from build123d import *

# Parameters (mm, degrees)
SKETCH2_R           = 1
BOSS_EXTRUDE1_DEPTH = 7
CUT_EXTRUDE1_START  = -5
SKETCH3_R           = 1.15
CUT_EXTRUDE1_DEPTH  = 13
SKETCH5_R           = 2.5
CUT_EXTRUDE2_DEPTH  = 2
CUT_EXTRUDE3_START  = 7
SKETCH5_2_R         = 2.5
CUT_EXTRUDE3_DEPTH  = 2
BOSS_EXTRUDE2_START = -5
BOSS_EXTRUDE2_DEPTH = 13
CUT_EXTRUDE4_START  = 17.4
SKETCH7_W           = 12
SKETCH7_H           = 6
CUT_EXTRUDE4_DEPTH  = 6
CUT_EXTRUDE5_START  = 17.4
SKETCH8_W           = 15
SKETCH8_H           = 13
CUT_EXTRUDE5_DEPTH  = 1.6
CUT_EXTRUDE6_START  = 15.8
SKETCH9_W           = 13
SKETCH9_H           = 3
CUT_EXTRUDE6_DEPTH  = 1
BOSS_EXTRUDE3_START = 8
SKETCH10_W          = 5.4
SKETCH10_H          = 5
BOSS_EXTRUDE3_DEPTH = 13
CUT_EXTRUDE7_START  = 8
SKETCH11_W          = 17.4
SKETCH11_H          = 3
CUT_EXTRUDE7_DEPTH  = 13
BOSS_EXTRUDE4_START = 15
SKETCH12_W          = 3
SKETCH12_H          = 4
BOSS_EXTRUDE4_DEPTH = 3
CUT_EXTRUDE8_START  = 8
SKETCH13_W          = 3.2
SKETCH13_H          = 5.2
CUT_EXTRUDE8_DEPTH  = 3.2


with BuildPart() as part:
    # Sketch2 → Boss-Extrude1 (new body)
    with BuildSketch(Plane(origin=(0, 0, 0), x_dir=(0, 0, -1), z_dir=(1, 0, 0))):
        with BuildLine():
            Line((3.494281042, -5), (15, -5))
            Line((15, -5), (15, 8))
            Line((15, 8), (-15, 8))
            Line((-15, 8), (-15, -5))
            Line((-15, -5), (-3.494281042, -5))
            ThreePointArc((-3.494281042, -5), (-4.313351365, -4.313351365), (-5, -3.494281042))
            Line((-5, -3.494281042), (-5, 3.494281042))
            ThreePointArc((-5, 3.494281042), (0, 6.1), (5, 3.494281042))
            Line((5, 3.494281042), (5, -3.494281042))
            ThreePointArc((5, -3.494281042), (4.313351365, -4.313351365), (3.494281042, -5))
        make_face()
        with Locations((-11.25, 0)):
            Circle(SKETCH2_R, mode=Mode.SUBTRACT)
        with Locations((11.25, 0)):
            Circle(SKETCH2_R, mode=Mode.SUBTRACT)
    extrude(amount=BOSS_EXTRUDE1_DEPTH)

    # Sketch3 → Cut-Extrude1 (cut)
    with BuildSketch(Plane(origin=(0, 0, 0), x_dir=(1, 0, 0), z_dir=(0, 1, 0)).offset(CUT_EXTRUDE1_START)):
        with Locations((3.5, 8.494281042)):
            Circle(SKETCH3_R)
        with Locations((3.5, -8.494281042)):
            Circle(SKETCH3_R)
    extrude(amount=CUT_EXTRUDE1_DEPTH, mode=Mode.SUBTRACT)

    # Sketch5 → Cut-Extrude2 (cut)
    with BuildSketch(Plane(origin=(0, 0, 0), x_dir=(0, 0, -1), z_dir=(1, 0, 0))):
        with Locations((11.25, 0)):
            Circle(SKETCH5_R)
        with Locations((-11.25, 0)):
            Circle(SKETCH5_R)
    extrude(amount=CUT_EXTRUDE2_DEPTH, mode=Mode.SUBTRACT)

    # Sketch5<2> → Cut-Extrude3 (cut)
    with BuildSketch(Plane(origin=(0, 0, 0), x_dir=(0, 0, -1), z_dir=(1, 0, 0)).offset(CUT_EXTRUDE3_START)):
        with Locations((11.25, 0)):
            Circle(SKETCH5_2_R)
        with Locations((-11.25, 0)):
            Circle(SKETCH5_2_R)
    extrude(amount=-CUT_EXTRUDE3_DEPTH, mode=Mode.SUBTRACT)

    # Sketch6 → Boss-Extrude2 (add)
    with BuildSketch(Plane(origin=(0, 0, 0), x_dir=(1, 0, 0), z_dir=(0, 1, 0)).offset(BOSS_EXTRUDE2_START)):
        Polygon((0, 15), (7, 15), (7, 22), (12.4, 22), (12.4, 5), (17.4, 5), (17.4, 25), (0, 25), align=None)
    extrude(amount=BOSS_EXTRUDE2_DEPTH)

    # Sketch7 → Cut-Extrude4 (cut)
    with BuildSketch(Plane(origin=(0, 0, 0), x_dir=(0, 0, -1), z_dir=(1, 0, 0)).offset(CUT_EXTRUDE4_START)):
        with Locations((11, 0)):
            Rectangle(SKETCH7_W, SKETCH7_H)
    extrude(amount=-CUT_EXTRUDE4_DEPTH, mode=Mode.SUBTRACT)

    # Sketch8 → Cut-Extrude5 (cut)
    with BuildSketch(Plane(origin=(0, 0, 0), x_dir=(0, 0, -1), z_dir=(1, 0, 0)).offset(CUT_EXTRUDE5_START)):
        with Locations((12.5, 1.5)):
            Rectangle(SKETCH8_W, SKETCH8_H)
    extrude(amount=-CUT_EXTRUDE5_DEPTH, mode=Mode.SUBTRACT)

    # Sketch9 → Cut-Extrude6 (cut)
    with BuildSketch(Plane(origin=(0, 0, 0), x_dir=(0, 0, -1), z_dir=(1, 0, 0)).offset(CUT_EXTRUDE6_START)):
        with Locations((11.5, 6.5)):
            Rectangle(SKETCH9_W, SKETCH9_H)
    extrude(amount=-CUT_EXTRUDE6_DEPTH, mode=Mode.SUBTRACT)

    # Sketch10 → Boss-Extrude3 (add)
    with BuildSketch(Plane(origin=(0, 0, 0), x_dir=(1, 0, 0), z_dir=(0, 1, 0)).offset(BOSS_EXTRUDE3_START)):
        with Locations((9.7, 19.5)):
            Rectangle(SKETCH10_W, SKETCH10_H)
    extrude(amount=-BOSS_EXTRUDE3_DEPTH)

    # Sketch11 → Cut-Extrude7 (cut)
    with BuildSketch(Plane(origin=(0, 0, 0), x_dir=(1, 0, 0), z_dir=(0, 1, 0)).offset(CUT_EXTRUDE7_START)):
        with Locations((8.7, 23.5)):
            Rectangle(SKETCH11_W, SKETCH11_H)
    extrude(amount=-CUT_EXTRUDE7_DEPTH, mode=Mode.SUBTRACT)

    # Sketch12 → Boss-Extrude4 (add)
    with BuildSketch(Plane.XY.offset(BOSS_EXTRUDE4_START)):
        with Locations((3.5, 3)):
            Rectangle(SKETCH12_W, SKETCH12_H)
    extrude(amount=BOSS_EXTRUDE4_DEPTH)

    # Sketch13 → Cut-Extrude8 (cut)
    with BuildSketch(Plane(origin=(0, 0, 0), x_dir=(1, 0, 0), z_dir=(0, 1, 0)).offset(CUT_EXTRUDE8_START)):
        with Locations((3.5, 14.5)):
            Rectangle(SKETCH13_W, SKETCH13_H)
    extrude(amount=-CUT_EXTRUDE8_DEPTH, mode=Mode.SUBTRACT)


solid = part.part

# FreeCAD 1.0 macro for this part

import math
import FreeCAD as App
import Part
import Sketcher
from FreeCAD import Vector
Q = App.Units.Quantity

doc = App.newDocument("Part")
body = doc.addObject("PartDesign::Body", "Body")

# Sketch on YZ plane
sketch1 = doc.addObject("Sketcher::SketchObject", "Sketch")
body.addObject(sketch1)
sketch1.AttachmentSupport = (doc.YZ_Plane, [""])
sketch1.MapMode = "FlatFace"
sketch1.addGeometry([
    Part.LineSegment(Vector(-5, -3.494281, 0), Vector(-5, -15, 0)),  # 0
    Part.LineSegment(Vector(-5, -15, 0), Vector(8, -15, 0)),  # 1
    Part.LineSegment(Vector(8, -15, 0), Vector(8, 15, 0)),  # 2
    Part.LineSegment(Vector(8, 15, 0), Vector(-5, 15, 0)),  # 3
    Part.LineSegment(Vector(-5, 15, 0), Vector(-5, 3.494281, 0)),  # 4
    Part.ArcOfCircle(Part.Circle(Vector(0, 0, 0), Vector(0, 0, 1), 6.1), math.radians(124.948014), math.radians(145.051986)),  # 5
    Part.LineSegment(Vector(-3.494281, 5, 0), Vector(3.494281, 5, 0)),  # 6
    Part.ArcOfCircle(Part.Circle(Vector(0, 0, 0), Vector(0, 0, 1), 6.1), math.radians(-55.051986), math.radians(55.051986)),  # 7
    Part.LineSegment(Vector(3.494281, -5, 0), Vector(-3.494281, -5, 0)),  # 8
    Part.ArcOfCircle(Part.Circle(Vector(0, 0, 0), Vector(0, 0, 1), 6.1), math.radians(-145.051986), math.radians(-124.948014)),  # 9
    Part.Circle(Vector(0, 11.25, 0), Vector(0, 0, 1), 1),  # 10
    Part.Circle(Vector(0, -11.25, 0), Vector(0, 0, 1), 1),  # 11
], False)
sketch1.addConstraint([
    Sketcher.Constraint("Coincident", 0, 2, 1, 1),
    Sketcher.Constraint("Coincident", 1, 2, 2, 1),
    Sketcher.Constraint("Coincident", 2, 2, 3, 1),
    Sketcher.Constraint("Coincident", 3, 2, 4, 1),
    Sketcher.Constraint("Coincident", 4, 2, 5, 2),
    Sketcher.Constraint("Coincident", 5, 1, 6, 1),
    Sketcher.Constraint("Coincident", 6, 2, 7, 2),
    Sketcher.Constraint("Coincident", 7, 1, 8, 1),
    Sketcher.Constraint("Coincident", 8, 2, 9, 2),
    Sketcher.Constraint("Coincident", 9, 1, 0, 1),
    Sketcher.Constraint("Vertical", 0),
    Sketcher.Constraint("Horizontal", 1),
    Sketcher.Constraint("Vertical", 2),
    Sketcher.Constraint("Horizontal", 3),
    Sketcher.Constraint("Vertical", 4),
    Sketcher.Constraint("Horizontal", 6),
    Sketcher.Constraint("Horizontal", 8),
    Sketcher.Constraint("Coincident", 5, 3, -1, 1),
    Sketcher.Constraint("Coincident", 7, 3, -1, 1),
    Sketcher.Constraint("Coincident", 9, 3, -1, 1),
    Sketcher.Constraint("Equal", 5, 7),
    Sketcher.Constraint("Equal", 7, 9),
    Sketcher.Constraint("Equal", 10, 11),
    Sketcher.Constraint("Symmetric", 10, 3, 11, 3, -1, 1),
    Sketcher.Constraint("Symmetric", 0, 2, 3, 2, -1),
    Sketcher.Constraint("PointOnObject", 10, 3, -2),
    Sketcher.Constraint("Vertical", 6, 2, 7, 1),
    Sketcher.Constraint("Diameter", 10, Q("2 mm")),
    Sketcher.Constraint("Radius", 5, Q("6.1 mm")),
    Sketcher.Constraint("DistanceX", 1, 1, 1, 2, Q("13 mm")),
    Sketcher.Constraint("DistanceY", 2, 1, 2, 2, Q("30 mm")),
    Sketcher.Constraint("DistanceX", 0, 2, -1, 1, Q("5 mm")),
    Sketcher.Constraint("DistanceY", -1, 1, 5, 1, Q("5 mm")),
    Sketcher.Constraint("DistanceY", 11, 3, 10, 3, Q("22.5 mm")),
])
pad1 = doc.addObject("PartDesign::Pad", "Pad")
body.addObject(pad1)
pad1.Profile = sketch1
pad1.Length = 7

# Sketch on XZ plane
sketch2 = doc.addObject("Sketcher::SketchObject", "Sketch001")
body.addObject(sketch2)
sketch2.AttachmentSupport = (doc.XZ_Plane, [""])
sketch2.MapMode = "FlatFace"
sketch2.AttachmentOffset = App.Placement(Vector(0, 0, 5), App.Rotation())
sketch2.addGeometry([
    Part.Circle(Vector(3.5, -8.494281, 0), Vector(0, 0, 1), 1.15),
    Part.Circle(Vector(3.5, 8.494281, 0), Vector(0, 0, 1), 1.15),
], False)
sketch2.addConstraint([
    Sketcher.Constraint("Equal", 0, 1),
    Sketcher.Constraint("Symmetric", 0, 3, 1, 3, -1),
    Sketcher.Constraint("Diameter", 0, Q("2.3 mm")),
    Sketcher.Constraint("DistanceX", -1, 1, 0, 3, Q("3.5 mm")),
    Sketcher.Constraint("DistanceY", 0, 3, -1, 1, Q("8.494281 mm")),
])
pocket1 = doc.addObject("PartDesign::Pocket", "Pocket")
body.addObject(pocket1)
pocket1.Profile = sketch2
pocket1.Length = 13

# Sketch on YZ plane
sketch3 = doc.addObject("Sketcher::SketchObject", "Sketch002")
body.addObject(sketch3)
sketch3.AttachmentSupport = (doc.YZ_Plane, [""])
sketch3.MapMode = "FlatFace"
sketch3.addGeometry([
    Part.Circle(Vector(0, -11.25, 0), Vector(0, 0, 1), 2.5),
    Part.Circle(Vector(0, 11.25, 0), Vector(0, 0, 1), 2.5),
], False)
sketch3.addConstraint([
    Sketcher.Constraint("Equal", 0, 1),
    Sketcher.Constraint("Symmetric", 0, 3, 1, 3, -1, 1),
    Sketcher.Constraint("PointOnObject", 0, 3, -2),
    Sketcher.Constraint("Diameter", 0, Q("5 mm")),
    Sketcher.Constraint("DistanceY", 0, 3, 1, 3, Q("22.5 mm")),
])
pocket2 = doc.addObject("PartDesign::Pocket", "Pocket001")
body.addObject(pocket2)
pocket2.Profile = sketch3
pocket2.Length = 2
pocket2.Reversed = True

# Sketch on YZ plane
sketch4 = doc.addObject("Sketcher::SketchObject", "Sketch003")
body.addObject(sketch4)
sketch4.AttachmentSupport = (doc.YZ_Plane, [""])
sketch4.MapMode = "FlatFace"
sketch4.AttachmentOffset = App.Placement(Vector(0, 0, 7), App.Rotation())
sketch4.addGeometry([
    Part.Circle(Vector(0, -11.25, 0), Vector(0, 0, 1), 2.5),
    Part.Circle(Vector(0, 11.25, 0), Vector(0, 0, 1), 2.5),
], False)
sketch4.addConstraint([
    Sketcher.Constraint("Equal", 0, 1),
    Sketcher.Constraint("Symmetric", 0, 3, 1, 3, -1, 1),
    Sketcher.Constraint("PointOnObject", 0, 3, -2),
    Sketcher.Constraint("Diameter", 0, Q("5 mm")),
    Sketcher.Constraint("DistanceY", 0, 3, 1, 3, Q("22.5 mm")),
])
pocket3 = doc.addObject("PartDesign::Pocket", "Pocket002")
body.addObject(pocket3)
pocket3.Profile = sketch4
pocket3.Length = 2

# Sketch on XZ plane
sketch5 = doc.addObject("Sketcher::SketchObject", "Sketch004")
body.addObject(sketch5)
sketch5.AttachmentSupport = (doc.XZ_Plane, [""])
sketch5.MapMode = "FlatFace"
sketch5.AttachmentOffset = App.Placement(Vector(0, 0, 5), App.Rotation())
sketch5.addGeometry([
    Part.LineSegment(Vector(0, -15, 0), Vector(7, -15, 0)),  # 0
    Part.LineSegment(Vector(7, -15, 0), Vector(7, -22, 0)),  # 1
    Part.LineSegment(Vector(7, -22, 0), Vector(12.4, -22, 0)),  # 2
    Part.LineSegment(Vector(12.4, -22, 0), Vector(12.4, -5, 0)),  # 3
    Part.LineSegment(Vector(12.4, -5, 0), Vector(17.4, -5, 0)),  # 4
    Part.LineSegment(Vector(17.4, -5, 0), Vector(17.4, -25, 0)),  # 5
    Part.LineSegment(Vector(17.4, -25, 0), Vector(0, -25, 0)),  # 6
    Part.LineSegment(Vector(0, -25, 0), Vector(0, -15, 0)),  # 7
], False)
sketch5.addConstraint([
    Sketcher.Constraint("Coincident", 0, 2, 1, 1),
    Sketcher.Constraint("Coincident", 1, 2, 2, 1),
    Sketcher.Constraint("Coincident", 2, 2, 3, 1),
    Sketcher.Constraint("Coincident", 3, 2, 4, 1),
    Sketcher.Constraint("Coincident", 4, 2, 5, 1),
    Sketcher.Constraint("Coincident", 5, 2, 6, 1),
    Sketcher.Constraint("Coincident", 6, 2, 7, 1),
    Sketcher.Constraint("Coincident", 7, 2, 0, 1),
    Sketcher.Constraint("Horizontal", 0),
    Sketcher.Constraint("Vertical", 1),
    Sketcher.Constraint("Horizontal", 2),
    Sketcher.Constraint("Vertical", 3),
    Sketcher.Constraint("Horizontal", 4),
    Sketcher.Constraint("Vertical", 5),
    Sketcher.Constraint("Horizontal", 6),
    Sketcher.Constraint("Vertical", 7),
    Sketcher.Constraint("PointOnObject", 6, 2, -2),
    Sketcher.Constraint("Equal", 0, 1),
    Sketcher.Constraint("DistanceX", 0, 1, 0, 2, Q("7 mm")),
    Sketcher.Constraint("DistanceX", 4, 1, 4, 2, Q("5 mm")),
    Sketcher.Constraint("DistanceY", 3, 1, 3, 2, Q("17 mm")),
    Sketcher.Constraint("DistanceY", 5, 2, 5, 1, Q("20 mm")),
    Sketcher.Constraint("DistanceX", 2, 1, 2, 2, Q("5.4 mm")),
    Sketcher.Constraint("DistanceY", 0, 2, -1, 1, Q("15 mm")),
])
pad2 = doc.addObject("PartDesign::Pad", "Pad001")
body.addObject(pad2)
pad2.Profile = sketch5
pad2.Length = 13
pad2.Reversed = True

# Sketch on YZ plane
sketch6 = doc.addObject("Sketcher::SketchObject", "Sketch005")
body.addObject(sketch6)
sketch6.AttachmentSupport = (doc.YZ_Plane, [""])
sketch6.MapMode = "FlatFace"
sketch6.AttachmentOffset = App.Placement(Vector(0, 0, 17.4), App.Rotation())
sketch6.addGeometry([
    Part.LineSegment(Vector(3, -5, 0), Vector(-3, -5, 0)),
    Part.LineSegment(Vector(-3, -5, 0), Vector(-3, -17, 0)),
    Part.LineSegment(Vector(-3, -17, 0), Vector(3, -17, 0)),
    Part.LineSegment(Vector(3, -17, 0), Vector(3, -5, 0)),
], False)
sketch6.addConstraint([
    Sketcher.Constraint("Coincident", 0, 2, 1, 1),
    Sketcher.Constraint("Coincident", 1, 2, 2, 1),
    Sketcher.Constraint("Coincident", 2, 2, 3, 1),
    Sketcher.Constraint("Coincident", 3, 2, 0, 1),
    Sketcher.Constraint("Horizontal", 0),
    Sketcher.Constraint("Vertical", 1),
    Sketcher.Constraint("Horizontal", 2),
    Sketcher.Constraint("Vertical", 3),
    Sketcher.Constraint("DistanceX", 0, 2, 0, 1, Q("6 mm")),
    Sketcher.Constraint("DistanceY", 1, 2, 1, 1, Q("12 mm")),
    Sketcher.Constraint("DistanceX", 0, 2, -1, 1, Q("3 mm")),
    Sketcher.Constraint("DistanceY", 0, 2, -1, 1, Q("5 mm")),
])
pocket4 = doc.addObject("PartDesign::Pocket", "Pocket003")
body.addObject(pocket4)
pocket4.Profile = sketch6
pocket4.Length = 6

# Sketch on YZ plane
sketch7 = doc.addObject("Sketcher::SketchObject", "Sketch006")
body.addObject(sketch7)
sketch7.AttachmentSupport = (doc.YZ_Plane, [""])
sketch7.MapMode = "FlatFace"
sketch7.AttachmentOffset = App.Placement(Vector(0, 0, 17.4), App.Rotation())
sketch7.addGeometry([
    Part.LineSegment(Vector(8, -5, 0), Vector(-5, -5, 0)),
    Part.LineSegment(Vector(-5, -5, 0), Vector(-5, -20, 0)),
    Part.LineSegment(Vector(-5, -20, 0), Vector(8, -20, 0)),
    Part.LineSegment(Vector(8, -20, 0), Vector(8, -5, 0)),
], False)
sketch7.addConstraint([
    Sketcher.Constraint("Coincident", 0, 2, 1, 1),
    Sketcher.Constraint("Coincident", 1, 2, 2, 1),
    Sketcher.Constraint("Coincident", 2, 2, 3, 1),
    Sketcher.Constraint("Coincident", 3, 2, 0, 1),
    Sketcher.Constraint("Horizontal", 0),
    Sketcher.Constraint("Vertical", 1),
    Sketcher.Constraint("Horizontal", 2),
    Sketcher.Constraint("Vertical", 3),
    Sketcher.Constraint("DistanceX", 0, 2, 0, 1, Q("13 mm")),
    Sketcher.Constraint("DistanceY", 1, 2, 1, 1, Q("15 mm")),
    Sketcher.Constraint("DistanceX", 0, 2, -1, 1, Q("5 mm")),
    Sketcher.Constraint("DistanceY", 0, 2, -1, 1, Q("5 mm")),
])
pocket5 = doc.addObject("PartDesign::Pocket", "Pocket004")
body.addObject(pocket5)
pocket5.Profile = sketch7
pocket5.Length = 1.6

# Sketch on YZ plane
sketch8 = doc.addObject("Sketcher::SketchObject", "Sketch007")
body.addObject(sketch8)
sketch8.AttachmentSupport = (doc.YZ_Plane, [""])
sketch8.MapMode = "FlatFace"
sketch8.AttachmentOffset = App.Placement(Vector(0, 0, 15.8), App.Rotation())
sketch8.addGeometry([
    Part.LineSegment(Vector(8, -5, 0), Vector(5, -5, 0)),
    Part.LineSegment(Vector(5, -5, 0), Vector(5, -18, 0)),
    Part.LineSegment(Vector(5, -18, 0), Vector(8, -18, 0)),
    Part.LineSegment(Vector(8, -18, 0), Vector(8, -5, 0)),
], False)
sketch8.addConstraint([
    Sketcher.Constraint("Coincident", 0, 2, 1, 1),
    Sketcher.Constraint("Coincident", 1, 2, 2, 1),
    Sketcher.Constraint("Coincident", 2, 2, 3, 1),
    Sketcher.Constraint("Coincident", 3, 2, 0, 1),
    Sketcher.Constraint("Horizontal", 0),
    Sketcher.Constraint("Vertical", 1),
    Sketcher.Constraint("Horizontal", 2),
    Sketcher.Constraint("Vertical", 3),
    Sketcher.Constraint("DistanceX", 0, 2, 0, 1, Q("3 mm")),
    Sketcher.Constraint("DistanceY", 1, 2, 1, 1, Q("13 mm")),
    Sketcher.Constraint("DistanceX", -1, 1, 0, 2, Q("5 mm")),
    Sketcher.Constraint("DistanceY", 0, 2, -1, 1, Q("5 mm")),
])
pocket6 = doc.addObject("PartDesign::Pocket", "Pocket005")
body.addObject(pocket6)
pocket6.Profile = sketch8
pocket6.Length = 1

# Sketch on XZ plane
sketch9 = doc.addObject("Sketcher::SketchObject", "Sketch008")
body.addObject(sketch9)
sketch9.AttachmentSupport = (doc.XZ_Plane, [""])
sketch9.MapMode = "FlatFace"
sketch9.AttachmentOffset = App.Placement(Vector(0, 0, -8), App.Rotation())
sketch9.addGeometry([
    Part.LineSegment(Vector(7, -22, 0), Vector(7, -17, 0)),
    Part.LineSegment(Vector(7, -17, 0), Vector(12.4, -17, 0)),
    Part.LineSegment(Vector(12.4, -17, 0), Vector(12.4, -22, 0)),
    Part.LineSegment(Vector(12.4, -22, 0), Vector(7, -22, 0)),
], False)
sketch9.addConstraint([
    Sketcher.Constraint("Coincident", 0, 2, 1, 1),
    Sketcher.Constraint("Coincident", 1, 2, 2, 1),
    Sketcher.Constraint("Coincident", 2, 2, 3, 1),
    Sketcher.Constraint("Coincident", 3, 2, 0, 1),
    Sketcher.Constraint("Vertical", 0),
    Sketcher.Constraint("Horizontal", 1),
    Sketcher.Constraint("Vertical", 2),
    Sketcher.Constraint("Horizontal", 3),
    Sketcher.Constraint("DistanceY", 0, 1, 0, 2, Q("5 mm")),
    Sketcher.Constraint("DistanceX", 1, 1, 1, 2, Q("5.4 mm")),
    Sketcher.Constraint("DistanceX", -1, 1, 0, 2, Q("7 mm")),
    Sketcher.Constraint("DistanceY", 0, 2, -1, 1, Q("17 mm")),
])
pad3 = doc.addObject("PartDesign::Pad", "Pad002")
body.addObject(pad3)
pad3.Profile = sketch9
pad3.Length = 13

# Sketch on XZ plane
sketch10 = doc.addObject("Sketcher::SketchObject", "Sketch009")
body.addObject(sketch10)
sketch10.AttachmentSupport = (doc.XZ_Plane, [""])
sketch10.MapMode = "FlatFace"
sketch10.AttachmentOffset = App.Placement(Vector(0, 0, -8), App.Rotation())
sketch10.addGeometry([
    Part.LineSegment(Vector(0, -25, 0), Vector(0, -22, 0)),
    Part.LineSegment(Vector(0, -22, 0), Vector(17.4, -22, 0)),
    Part.LineSegment(Vector(17.4, -22, 0), Vector(17.4, -25, 0)),
    Part.LineSegment(Vector(17.4, -25, 0), Vector(0, -25, 0)),
], False)
sketch10.addConstraint([
    Sketcher.Constraint("Coincident", 0, 2, 1, 1),
    Sketcher.Constraint("Coincident", 1, 2, 2, 1),
    Sketcher.Constraint("Coincident", 2, 2, 3, 1),
    Sketcher.Constraint("Coincident", 3, 2, 0, 1),
    Sketcher.Constraint("Vertical", 0),
    Sketcher.Constraint("Horizontal", 1),
    Sketcher.Constraint("Vertical", 2),
    Sketcher.Constraint("Horizontal", 3),
    Sketcher.Constraint("PointOnObject", 0, 2, -2),
    Sketcher.Constraint("DistanceY", 0, 1, 0, 2, Q("3 mm")),
    Sketcher.Constraint("DistanceX", 1, 1, 1, 2, Q("17.4 mm")),
    Sketcher.Constraint("DistanceY", 0, 2, -1, 1, Q("22 mm")),
])
pocket7 = doc.addObject("PartDesign::Pocket", "Pocket006")
body.addObject(pocket7)
pocket7.Profile = sketch10
pocket7.Length = 13
pocket7.Reversed = True

# Sketch on XY plane
sketch11 = doc.addObject("Sketcher::SketchObject", "Sketch010")
body.addObject(sketch11)
sketch11.AttachmentSupport = (doc.XY_Plane, [""])
sketch11.MapMode = "FlatFace"
sketch11.AttachmentOffset = App.Placement(Vector(0, 0, 15), App.Rotation())
sketch11.addGeometry([
    Part.LineSegment(Vector(2, 5, 0), Vector(2, 1, 0)),
    Part.LineSegment(Vector(2, 1, 0), Vector(5, 1, 0)),
    Part.LineSegment(Vector(5, 1, 0), Vector(5, 5, 0)),
    Part.LineSegment(Vector(5, 5, 0), Vector(2, 5, 0)),
], False)
sketch11.addConstraint([
    Sketcher.Constraint("Coincident", 0, 2, 1, 1),
    Sketcher.Constraint("Coincident", 1, 2, 2, 1),
    Sketcher.Constraint("Coincident", 2, 2, 3, 1),
    Sketcher.Constraint("Coincident", 3, 2, 0, 1),
    Sketcher.Constraint("Vertical", 0),
    Sketcher.Constraint("Horizontal", 1),
    Sketcher.Constraint("Vertical", 2),
    Sketcher.Constraint("Horizontal", 3),
    Sketcher.Constraint("DistanceX", 1, 1, 1, 2, Q("3 mm")),
    Sketcher.Constraint("DistanceY", 0, 2, 0, 1, Q("4 mm")),
    Sketcher.Constraint("DistanceX", -1, 1, 0, 2, Q("2 mm")),
    Sketcher.Constraint("DistanceY", -1, 1, 0, 2, Q("1 mm")),
])
pad4 = doc.addObject("PartDesign::Pad", "Pad003")
body.addObject(pad4)
pad4.Profile = sketch11
pad4.Length = 3

# Sketch on XZ plane
sketch12 = doc.addObject("Sketcher::SketchObject", "Sketch011")
body.addObject(sketch12)
sketch12.AttachmentSupport = (doc.XZ_Plane, [""])
sketch12.MapMode = "FlatFace"
sketch12.AttachmentOffset = App.Placement(Vector(0, 0, -8), App.Rotation())
sketch12.addGeometry([
    Part.LineSegment(Vector(1.9, -17.1, 0), Vector(1.9, -11.9, 0)),
    Part.LineSegment(Vector(1.9, -11.9, 0), Vector(5.1, -11.9, 0)),
    Part.LineSegment(Vector(5.1, -11.9, 0), Vector(5.1, -17.1, 0)),
    Part.LineSegment(Vector(5.1, -17.1, 0), Vector(1.9, -17.1, 0)),
], False)
sketch12.addConstraint([
    Sketcher.Constraint("Coincident", 0, 2, 1, 1),
    Sketcher.Constraint("Coincident", 1, 2, 2, 1),
    Sketcher.Constraint("Coincident", 2, 2, 3, 1),
    Sketcher.Constraint("Coincident", 3, 2, 0, 1),
    Sketcher.Constraint("Vertical", 0),
    Sketcher.Constraint("Horizontal", 1),
    Sketcher.Constraint("Vertical", 2),
    Sketcher.Constraint("Horizontal", 3),
    Sketcher.Constraint("DistanceX", 1, 1, 1, 2, Q("3.2 mm")),
    Sketcher.Constraint("DistanceY", 0, 1, 0, 2, Q("5.2 mm")),
    Sketcher.Constraint("DistanceX", -1, 1, 0, 2, Q("1.9 mm")),
    Sketcher.Constraint("DistanceY", 0, 2, -1, 1, Q("11.9 mm")),
])
pocket8 = doc.addObject("PartDesign::Pocket", "Pocket007")
body.addObject(pocket8)
pocket8.Profile = sketch12
pocket8.Length = 3.2
pocket8.Reversed = True

doc.recompute()
